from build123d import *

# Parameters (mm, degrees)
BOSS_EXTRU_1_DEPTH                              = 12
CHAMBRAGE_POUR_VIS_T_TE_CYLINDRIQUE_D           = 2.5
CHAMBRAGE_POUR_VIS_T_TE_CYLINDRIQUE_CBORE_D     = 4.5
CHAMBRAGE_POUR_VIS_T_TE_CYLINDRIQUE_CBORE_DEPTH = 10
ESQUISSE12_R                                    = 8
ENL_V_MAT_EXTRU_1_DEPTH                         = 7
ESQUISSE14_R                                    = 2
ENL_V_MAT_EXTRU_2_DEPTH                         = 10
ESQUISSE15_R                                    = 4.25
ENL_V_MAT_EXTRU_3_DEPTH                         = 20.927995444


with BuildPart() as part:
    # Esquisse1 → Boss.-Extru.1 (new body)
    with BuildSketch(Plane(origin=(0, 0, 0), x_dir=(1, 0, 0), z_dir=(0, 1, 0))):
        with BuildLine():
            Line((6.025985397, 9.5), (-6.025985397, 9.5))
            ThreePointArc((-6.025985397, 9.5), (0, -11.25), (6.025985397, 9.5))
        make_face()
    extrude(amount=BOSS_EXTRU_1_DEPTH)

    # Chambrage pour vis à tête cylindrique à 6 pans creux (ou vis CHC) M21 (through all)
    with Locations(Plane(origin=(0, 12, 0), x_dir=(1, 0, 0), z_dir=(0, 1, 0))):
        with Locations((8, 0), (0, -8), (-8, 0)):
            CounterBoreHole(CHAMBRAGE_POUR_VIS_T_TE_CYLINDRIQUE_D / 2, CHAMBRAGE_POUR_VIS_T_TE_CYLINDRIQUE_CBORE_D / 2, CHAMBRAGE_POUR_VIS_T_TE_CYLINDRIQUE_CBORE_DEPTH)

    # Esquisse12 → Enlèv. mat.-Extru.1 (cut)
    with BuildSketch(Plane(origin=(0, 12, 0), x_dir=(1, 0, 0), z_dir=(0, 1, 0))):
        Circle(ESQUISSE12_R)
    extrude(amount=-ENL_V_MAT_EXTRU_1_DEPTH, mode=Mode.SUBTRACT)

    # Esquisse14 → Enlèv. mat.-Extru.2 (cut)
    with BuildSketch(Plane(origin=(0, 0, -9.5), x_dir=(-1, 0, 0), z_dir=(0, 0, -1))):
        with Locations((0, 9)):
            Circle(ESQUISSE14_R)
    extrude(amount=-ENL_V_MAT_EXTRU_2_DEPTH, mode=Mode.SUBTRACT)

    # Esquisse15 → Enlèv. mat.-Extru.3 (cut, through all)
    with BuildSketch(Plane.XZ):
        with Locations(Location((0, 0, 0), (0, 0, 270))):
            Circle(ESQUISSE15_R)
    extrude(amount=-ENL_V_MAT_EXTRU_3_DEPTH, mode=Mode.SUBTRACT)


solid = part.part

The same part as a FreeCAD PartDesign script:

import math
import FreeCAD as App
import Part
import Sketcher

doc = App.newDocument("Part")
body = doc.addObject("PartDesign::Body", "Body")

sketch1 = body.newObject("Sketcher::SketchObject", "Sketch")
sketch1.AttachmentSupport = (doc.getObject("XZ_Plane"), [""])
sketch1.MapMode = "FlatFace"
sketch1.addGeometry(Part.LineSegment(App.Vector(6.025985, -9.5, 0), App.Vector(-6.025985, -9.5, 0)), False)
sketch1.addGeometry(Part.ArcOfCircle(Part.Circle(App.Vector(0, 0, 0), App.Vector(0, 0, 1), 11.25), math.radians(-57.612461), math.radians(237.612461)), False)
sketch1.addConstraint(Sketcher.Constraint("Coincident", 0, 1, 1, 1))
sketch1.addConstraint(Sketcher.Constraint("Coincident", 1, 2, 0, 2))
sketch1.addConstraint(Sketcher.Constraint("Horizontal", 0))
sketch1.addConstraint(Sketcher.Constraint("Coincident", 1, 3, -1, 1))
sketch1.addConstraint(Sketcher.Constraint("Radius", 1, 11.25))
sketch1.addConstraint(Sketcher.Constraint("DistanceY", 0, 1, -1, 1, 9.5))
pad1 = body.newObject("PartDesign::Pad", "Pad")
pad1.Profile = sketch1
pad1.Length = 12
pad1.Reversed = True

sketch2 = body.newObject("Sketcher::SketchObject", "Sketch001")
sketch2.AttachmentSupport = (doc.getObject("XZ_Plane"), [""])
sketch2.MapMode = "FlatFace"
sketch2.AttachmentOffset = App.Placement(App.Vector(0, 0, -12), App.Rotation())
sketch2.addGeometry(Part.Circle(App.Vector(8, 0, 0), App.Vector(0, 0, 1), 1.25), False)
sketch2.addGeometry(Part.Circle(App.Vector(0, 8, 0), App.Vector(0, 0, 1), 1.25), False)
sketch2.addGeometry(Part.Circle(App.Vector(-8, 0, 0), App.Vector(0, 0, 1), 1.25), False)
sketch2.addConstraint(Sketcher.Constraint("Equal", 0, 1))
sketch2.addConstraint(Sketcher.Constraint("Equal", 1, 2))
sketch2.addConstraint(Sketcher.Constraint("Symmetric", 0, 3, 2, 3, -1, 1))
sketch2.addConstraint(Sketcher.Constraint("PointOnObject", 0, 3, -1))
sketch2.addConstraint(Sketcher.Constraint("PointOnObject", 1, 3, -2))
sketch2.addConstraint(Sketcher.Constraint("Diameter", 0, 2.5))
sketch2.addConstraint(Sketcher.Constraint("DistanceX", -1, 1, 0, 3, 8.0))
sketch2.addConstraint(Sketcher.Constraint("DistanceY", -1, 1, 1, 3, 8.0))
doc.recompute()
hole = body.newObject("PartDesign::Hole", "Hole")
hole.Profile = sketch2
hole.ThreadType = "None"
hole.Diameter = 2.5
hole.DepthType = "ThroughAll"
hole.HoleCutType = "Counterbore"
hole.HoleCutDiameter = 4.5
hole.HoleCutDepth = 10
hole.Reversed = True

sketch3 = body.newObject("Sketcher::SketchObject", "Sketch002")
sketch3.AttachmentSupport = (doc.getObject("XZ_Plane"), [""])
sketch3.MapMode = "FlatFace"
sketch3.AttachmentOffset = App.Placement(App.Vector(0, 0, -12), App.Rotation())
sketch3.addGeometry(Part.Circle(App.Vector(0, 0, 0), App.Vector(0, 0, 1), 8), False)
sketch3.addConstraint(Sketcher.Constraint("Coincident", 0, 3, -1, 1))
sketch3.addConstraint(Sketcher.Constraint("Diameter", 0, 16.0))
pocket1 = body.newObject("PartDesign::Pocket", "Pocket")
pocket1.Profile = sketch3
pocket1.Length = 7
pocket1.Reversed = True

sketch4 = body.newObject("Sketcher::SketchObject", "Sketch003")
sketch4.AttachmentSupport = (doc.getObject("XY_Plane"), [""])
sketch4.MapMode = "FlatFace"
sketch4.AttachmentOffset = App.Placement(App.Vector(0, 0, -9.5), App.Rotation())
sketch4.addGeometry(Part.Circle(App.Vector(0, 9, 0), App.Vector(0, 0, 1), 2), False)
sketch4.addConstraint(Sketcher.Constraint("PointOnObject", 0, 3, -2))
sketch4.addConstraint(Sketcher.Constraint("Diameter", 0, 4.0))
sketch4.addConstraint(Sketcher.Constraint("DistanceY", -1, 1, 0, 3, 9.0))
pocket2 = body.newObject("PartDesign::Pocket", "Pocket001")
pocket2.Profile = sketch4
pocket2.Length = 10
pocket2.Reversed = True

sketch5 = body.newObject("Sketcher::SketchObject", "Sketch004")
sketch5.AttachmentSupport = (doc.getObject("XZ_Plane"), [""])
sketch5.MapMode = "FlatFace"
sketch5.addGeometry(Part.Circle(App.Vector(0, 0, 0), App.Vector(0, 0, 1), 4.25), False)
sketch5.addConstraint(Sketcher.Constraint("Coincident", 0, 3, -1, 1))
sketch5.addConstraint(Sketcher.Constraint("Diameter", 0, 8.5))
pocket3 = body.newObject("PartDesign::Pocket", "Pocket002")
pocket3.Profile = sketch5
pocket3.Type = "ThroughAll"

doc.recompute()
